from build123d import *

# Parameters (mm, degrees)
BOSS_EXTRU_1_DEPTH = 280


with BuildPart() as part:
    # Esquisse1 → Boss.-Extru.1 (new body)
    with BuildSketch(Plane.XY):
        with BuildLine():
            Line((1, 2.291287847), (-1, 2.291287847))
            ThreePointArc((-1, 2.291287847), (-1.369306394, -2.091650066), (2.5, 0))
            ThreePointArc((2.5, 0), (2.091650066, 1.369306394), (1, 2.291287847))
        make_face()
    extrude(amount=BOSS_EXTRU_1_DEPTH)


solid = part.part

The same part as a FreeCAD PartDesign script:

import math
import FreeCAD as App
import Part
import Sketcher

doc = App.newDocument("Part")
body = doc.addObject("PartDesign::Body", "Body")

# Sketch on XY plane
sketch1 = body.newObject("Sketcher::SketchObject", "Sketch")
sketch1.AttachmentSupport = (doc.getObject("XY_Plane"), [""])
sketch1.MapMode = "FlatFace"
sketch1.addGeometry([
    Part.LineSegment(App.Vector(1, 2.291288, 0), App.Vector(-1, 2.291288, 0)),
    Part.ArcOfCircle(Part.Circle(App.Vector(0, 0, 0), App.Vector(0, 0, 1), 2.5), math.radians(113.578178), math.radians(360)),
    Part.ArcOfCircle(Part.Circle(App.Vector(0, 0, 0), App.Vector(0, 0, 1), 2.5), math.radians(0), math.radians(66.421822)),
], False)
sketch1.addConstraint([
    Sketcher.Constraint("Coincident", 0, 2, 1, 1),
    Sketcher.Constraint("Tangent", 1, 2, 2, 1),
    Sketcher.Constraint("Coincident", 2, 2, 0, 1),
    Sketcher.Constraint("Horizontal", 0),
    Sketcher.Constraint("Coincident", 1, 3, -1, 1),
    Sketcher.Constraint("Equal", 1, 2),
    Sketcher.Constraint("PointOnObject", 1, 2, -1),
    Sketcher.Constraint("Radius", 1, 2.5),
    Sketcher.Constraint("DistanceX", 0, 2, 0, 1, 2.0),
])
pad1 = body.newObject("PartDesign::Pad", "Pad")
pad1.Profile = sketch1
pad1.Length = 280

doc.recompute()
